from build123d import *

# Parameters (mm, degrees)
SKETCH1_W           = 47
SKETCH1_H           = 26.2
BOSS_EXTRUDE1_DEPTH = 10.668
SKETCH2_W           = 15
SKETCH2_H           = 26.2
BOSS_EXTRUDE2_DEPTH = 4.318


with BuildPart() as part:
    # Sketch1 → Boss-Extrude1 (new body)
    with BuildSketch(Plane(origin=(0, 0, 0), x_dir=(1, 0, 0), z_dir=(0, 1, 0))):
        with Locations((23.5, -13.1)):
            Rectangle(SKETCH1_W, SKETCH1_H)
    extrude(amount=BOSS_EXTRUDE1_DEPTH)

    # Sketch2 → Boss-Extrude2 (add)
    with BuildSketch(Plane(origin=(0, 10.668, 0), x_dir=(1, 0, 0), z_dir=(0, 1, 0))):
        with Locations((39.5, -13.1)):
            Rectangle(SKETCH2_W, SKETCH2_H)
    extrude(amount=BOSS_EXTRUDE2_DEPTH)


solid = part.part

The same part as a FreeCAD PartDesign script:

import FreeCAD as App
import Part
import Sketcher

V = App.Vector
Q = App.Units.Quantity


def add_polygon(sketch, points):
    """Adds a closed chain of lines whose ends are joined by coincident constraints."""
    first, n = sketch.GeometryCount, len(points)
    for a, b in zip(points, points[1:] + points[:1]):
        sketch.addGeometry(Part.LineSegment(App.Vector(*a, 0), App.Vector(*b, 0)), False)
    for i in range(n):
        sketch.addConstraint(Sketcher.Constraint("Coincident", first + i, 2, first + (i + 1) % n, 1))

doc = App.newDocument("Part")
body = doc.addObject("PartDesign::Body", "Body")

# Sketch on XZ plane
sketch1 = body.newObject("Sketcher::SketchObject", "Sketch")
sketch1.AttachmentSupport = (doc.getObject("XZ_Plane"), [""])
sketch1.MapMode = "FlatFace"
add_polygon(sketch1, [(0, 0), (0, 26.2), (47, 26.2), (47, 0)])  # lines 0-3
sketch1.addConstraint([
    Sketcher.Constraint("Vertical", 0),
    Sketcher.Constraint("Horizontal", 1),
    Sketcher.Constraint("Vertical", 2),
    Sketcher.Constraint("Horizontal", 3),
    Sketcher.Constraint("Coincident", 3, 2, -1, 1),
    Sketcher.Constraint("DistanceX", 1, 1, 1, 2, Q("47 mm")),
    Sketcher.Constraint("DistanceY", 0, 1, 0, 2, Q("26.2 mm")),
])
pad1 = body.newObject("PartDesign::Pad", "Pad")
pad1.Profile = sketch1
pad1.Length = 10.668
pad1.Reversed = True

# Sketch on XZ plane
sketch2 = body.newObject("Sketcher::SketchObject", "Sketch001")
sketch2.AttachmentSupport = (doc.getObject("XZ_Plane"), [""])
sketch2.MapMode = "FlatFace"
sketch2.AttachmentOffset = App.Placement(V(0, 0, -10.668), App.Rotation())
add_polygon(sketch2, [(32, 0), (32, 26.2), (47, 26.2), (47, 0)])  # lines 0-3
sketch2.addConstraint([
    Sketcher.Constraint("Vertical", 0),
    Sketcher.Constraint("Horizontal", 1),
    Sketcher.Constraint("Vertical", 2),
    Sketcher.Constraint("Horizontal", 3),
    Sketcher.Constraint("PointOnObject", 2, 2, -1),
    Sketcher.Constraint("DistanceX", 1, 1, 1, 2, Q("15 mm")),
    Sketcher.Constraint("DistanceY", 0, 1, 0, 2, Q("26.2 mm")),
    Sketcher.Constraint("DistanceX", -1, 1, 0, 2, Q("32 mm")),
])
pad2 = body.newObject("PartDesign::Pad", "Pad001")
pad2.Profile = sketch2
pad2.Length = 4.318
pad2.Reversed = True

doc.recompute()
